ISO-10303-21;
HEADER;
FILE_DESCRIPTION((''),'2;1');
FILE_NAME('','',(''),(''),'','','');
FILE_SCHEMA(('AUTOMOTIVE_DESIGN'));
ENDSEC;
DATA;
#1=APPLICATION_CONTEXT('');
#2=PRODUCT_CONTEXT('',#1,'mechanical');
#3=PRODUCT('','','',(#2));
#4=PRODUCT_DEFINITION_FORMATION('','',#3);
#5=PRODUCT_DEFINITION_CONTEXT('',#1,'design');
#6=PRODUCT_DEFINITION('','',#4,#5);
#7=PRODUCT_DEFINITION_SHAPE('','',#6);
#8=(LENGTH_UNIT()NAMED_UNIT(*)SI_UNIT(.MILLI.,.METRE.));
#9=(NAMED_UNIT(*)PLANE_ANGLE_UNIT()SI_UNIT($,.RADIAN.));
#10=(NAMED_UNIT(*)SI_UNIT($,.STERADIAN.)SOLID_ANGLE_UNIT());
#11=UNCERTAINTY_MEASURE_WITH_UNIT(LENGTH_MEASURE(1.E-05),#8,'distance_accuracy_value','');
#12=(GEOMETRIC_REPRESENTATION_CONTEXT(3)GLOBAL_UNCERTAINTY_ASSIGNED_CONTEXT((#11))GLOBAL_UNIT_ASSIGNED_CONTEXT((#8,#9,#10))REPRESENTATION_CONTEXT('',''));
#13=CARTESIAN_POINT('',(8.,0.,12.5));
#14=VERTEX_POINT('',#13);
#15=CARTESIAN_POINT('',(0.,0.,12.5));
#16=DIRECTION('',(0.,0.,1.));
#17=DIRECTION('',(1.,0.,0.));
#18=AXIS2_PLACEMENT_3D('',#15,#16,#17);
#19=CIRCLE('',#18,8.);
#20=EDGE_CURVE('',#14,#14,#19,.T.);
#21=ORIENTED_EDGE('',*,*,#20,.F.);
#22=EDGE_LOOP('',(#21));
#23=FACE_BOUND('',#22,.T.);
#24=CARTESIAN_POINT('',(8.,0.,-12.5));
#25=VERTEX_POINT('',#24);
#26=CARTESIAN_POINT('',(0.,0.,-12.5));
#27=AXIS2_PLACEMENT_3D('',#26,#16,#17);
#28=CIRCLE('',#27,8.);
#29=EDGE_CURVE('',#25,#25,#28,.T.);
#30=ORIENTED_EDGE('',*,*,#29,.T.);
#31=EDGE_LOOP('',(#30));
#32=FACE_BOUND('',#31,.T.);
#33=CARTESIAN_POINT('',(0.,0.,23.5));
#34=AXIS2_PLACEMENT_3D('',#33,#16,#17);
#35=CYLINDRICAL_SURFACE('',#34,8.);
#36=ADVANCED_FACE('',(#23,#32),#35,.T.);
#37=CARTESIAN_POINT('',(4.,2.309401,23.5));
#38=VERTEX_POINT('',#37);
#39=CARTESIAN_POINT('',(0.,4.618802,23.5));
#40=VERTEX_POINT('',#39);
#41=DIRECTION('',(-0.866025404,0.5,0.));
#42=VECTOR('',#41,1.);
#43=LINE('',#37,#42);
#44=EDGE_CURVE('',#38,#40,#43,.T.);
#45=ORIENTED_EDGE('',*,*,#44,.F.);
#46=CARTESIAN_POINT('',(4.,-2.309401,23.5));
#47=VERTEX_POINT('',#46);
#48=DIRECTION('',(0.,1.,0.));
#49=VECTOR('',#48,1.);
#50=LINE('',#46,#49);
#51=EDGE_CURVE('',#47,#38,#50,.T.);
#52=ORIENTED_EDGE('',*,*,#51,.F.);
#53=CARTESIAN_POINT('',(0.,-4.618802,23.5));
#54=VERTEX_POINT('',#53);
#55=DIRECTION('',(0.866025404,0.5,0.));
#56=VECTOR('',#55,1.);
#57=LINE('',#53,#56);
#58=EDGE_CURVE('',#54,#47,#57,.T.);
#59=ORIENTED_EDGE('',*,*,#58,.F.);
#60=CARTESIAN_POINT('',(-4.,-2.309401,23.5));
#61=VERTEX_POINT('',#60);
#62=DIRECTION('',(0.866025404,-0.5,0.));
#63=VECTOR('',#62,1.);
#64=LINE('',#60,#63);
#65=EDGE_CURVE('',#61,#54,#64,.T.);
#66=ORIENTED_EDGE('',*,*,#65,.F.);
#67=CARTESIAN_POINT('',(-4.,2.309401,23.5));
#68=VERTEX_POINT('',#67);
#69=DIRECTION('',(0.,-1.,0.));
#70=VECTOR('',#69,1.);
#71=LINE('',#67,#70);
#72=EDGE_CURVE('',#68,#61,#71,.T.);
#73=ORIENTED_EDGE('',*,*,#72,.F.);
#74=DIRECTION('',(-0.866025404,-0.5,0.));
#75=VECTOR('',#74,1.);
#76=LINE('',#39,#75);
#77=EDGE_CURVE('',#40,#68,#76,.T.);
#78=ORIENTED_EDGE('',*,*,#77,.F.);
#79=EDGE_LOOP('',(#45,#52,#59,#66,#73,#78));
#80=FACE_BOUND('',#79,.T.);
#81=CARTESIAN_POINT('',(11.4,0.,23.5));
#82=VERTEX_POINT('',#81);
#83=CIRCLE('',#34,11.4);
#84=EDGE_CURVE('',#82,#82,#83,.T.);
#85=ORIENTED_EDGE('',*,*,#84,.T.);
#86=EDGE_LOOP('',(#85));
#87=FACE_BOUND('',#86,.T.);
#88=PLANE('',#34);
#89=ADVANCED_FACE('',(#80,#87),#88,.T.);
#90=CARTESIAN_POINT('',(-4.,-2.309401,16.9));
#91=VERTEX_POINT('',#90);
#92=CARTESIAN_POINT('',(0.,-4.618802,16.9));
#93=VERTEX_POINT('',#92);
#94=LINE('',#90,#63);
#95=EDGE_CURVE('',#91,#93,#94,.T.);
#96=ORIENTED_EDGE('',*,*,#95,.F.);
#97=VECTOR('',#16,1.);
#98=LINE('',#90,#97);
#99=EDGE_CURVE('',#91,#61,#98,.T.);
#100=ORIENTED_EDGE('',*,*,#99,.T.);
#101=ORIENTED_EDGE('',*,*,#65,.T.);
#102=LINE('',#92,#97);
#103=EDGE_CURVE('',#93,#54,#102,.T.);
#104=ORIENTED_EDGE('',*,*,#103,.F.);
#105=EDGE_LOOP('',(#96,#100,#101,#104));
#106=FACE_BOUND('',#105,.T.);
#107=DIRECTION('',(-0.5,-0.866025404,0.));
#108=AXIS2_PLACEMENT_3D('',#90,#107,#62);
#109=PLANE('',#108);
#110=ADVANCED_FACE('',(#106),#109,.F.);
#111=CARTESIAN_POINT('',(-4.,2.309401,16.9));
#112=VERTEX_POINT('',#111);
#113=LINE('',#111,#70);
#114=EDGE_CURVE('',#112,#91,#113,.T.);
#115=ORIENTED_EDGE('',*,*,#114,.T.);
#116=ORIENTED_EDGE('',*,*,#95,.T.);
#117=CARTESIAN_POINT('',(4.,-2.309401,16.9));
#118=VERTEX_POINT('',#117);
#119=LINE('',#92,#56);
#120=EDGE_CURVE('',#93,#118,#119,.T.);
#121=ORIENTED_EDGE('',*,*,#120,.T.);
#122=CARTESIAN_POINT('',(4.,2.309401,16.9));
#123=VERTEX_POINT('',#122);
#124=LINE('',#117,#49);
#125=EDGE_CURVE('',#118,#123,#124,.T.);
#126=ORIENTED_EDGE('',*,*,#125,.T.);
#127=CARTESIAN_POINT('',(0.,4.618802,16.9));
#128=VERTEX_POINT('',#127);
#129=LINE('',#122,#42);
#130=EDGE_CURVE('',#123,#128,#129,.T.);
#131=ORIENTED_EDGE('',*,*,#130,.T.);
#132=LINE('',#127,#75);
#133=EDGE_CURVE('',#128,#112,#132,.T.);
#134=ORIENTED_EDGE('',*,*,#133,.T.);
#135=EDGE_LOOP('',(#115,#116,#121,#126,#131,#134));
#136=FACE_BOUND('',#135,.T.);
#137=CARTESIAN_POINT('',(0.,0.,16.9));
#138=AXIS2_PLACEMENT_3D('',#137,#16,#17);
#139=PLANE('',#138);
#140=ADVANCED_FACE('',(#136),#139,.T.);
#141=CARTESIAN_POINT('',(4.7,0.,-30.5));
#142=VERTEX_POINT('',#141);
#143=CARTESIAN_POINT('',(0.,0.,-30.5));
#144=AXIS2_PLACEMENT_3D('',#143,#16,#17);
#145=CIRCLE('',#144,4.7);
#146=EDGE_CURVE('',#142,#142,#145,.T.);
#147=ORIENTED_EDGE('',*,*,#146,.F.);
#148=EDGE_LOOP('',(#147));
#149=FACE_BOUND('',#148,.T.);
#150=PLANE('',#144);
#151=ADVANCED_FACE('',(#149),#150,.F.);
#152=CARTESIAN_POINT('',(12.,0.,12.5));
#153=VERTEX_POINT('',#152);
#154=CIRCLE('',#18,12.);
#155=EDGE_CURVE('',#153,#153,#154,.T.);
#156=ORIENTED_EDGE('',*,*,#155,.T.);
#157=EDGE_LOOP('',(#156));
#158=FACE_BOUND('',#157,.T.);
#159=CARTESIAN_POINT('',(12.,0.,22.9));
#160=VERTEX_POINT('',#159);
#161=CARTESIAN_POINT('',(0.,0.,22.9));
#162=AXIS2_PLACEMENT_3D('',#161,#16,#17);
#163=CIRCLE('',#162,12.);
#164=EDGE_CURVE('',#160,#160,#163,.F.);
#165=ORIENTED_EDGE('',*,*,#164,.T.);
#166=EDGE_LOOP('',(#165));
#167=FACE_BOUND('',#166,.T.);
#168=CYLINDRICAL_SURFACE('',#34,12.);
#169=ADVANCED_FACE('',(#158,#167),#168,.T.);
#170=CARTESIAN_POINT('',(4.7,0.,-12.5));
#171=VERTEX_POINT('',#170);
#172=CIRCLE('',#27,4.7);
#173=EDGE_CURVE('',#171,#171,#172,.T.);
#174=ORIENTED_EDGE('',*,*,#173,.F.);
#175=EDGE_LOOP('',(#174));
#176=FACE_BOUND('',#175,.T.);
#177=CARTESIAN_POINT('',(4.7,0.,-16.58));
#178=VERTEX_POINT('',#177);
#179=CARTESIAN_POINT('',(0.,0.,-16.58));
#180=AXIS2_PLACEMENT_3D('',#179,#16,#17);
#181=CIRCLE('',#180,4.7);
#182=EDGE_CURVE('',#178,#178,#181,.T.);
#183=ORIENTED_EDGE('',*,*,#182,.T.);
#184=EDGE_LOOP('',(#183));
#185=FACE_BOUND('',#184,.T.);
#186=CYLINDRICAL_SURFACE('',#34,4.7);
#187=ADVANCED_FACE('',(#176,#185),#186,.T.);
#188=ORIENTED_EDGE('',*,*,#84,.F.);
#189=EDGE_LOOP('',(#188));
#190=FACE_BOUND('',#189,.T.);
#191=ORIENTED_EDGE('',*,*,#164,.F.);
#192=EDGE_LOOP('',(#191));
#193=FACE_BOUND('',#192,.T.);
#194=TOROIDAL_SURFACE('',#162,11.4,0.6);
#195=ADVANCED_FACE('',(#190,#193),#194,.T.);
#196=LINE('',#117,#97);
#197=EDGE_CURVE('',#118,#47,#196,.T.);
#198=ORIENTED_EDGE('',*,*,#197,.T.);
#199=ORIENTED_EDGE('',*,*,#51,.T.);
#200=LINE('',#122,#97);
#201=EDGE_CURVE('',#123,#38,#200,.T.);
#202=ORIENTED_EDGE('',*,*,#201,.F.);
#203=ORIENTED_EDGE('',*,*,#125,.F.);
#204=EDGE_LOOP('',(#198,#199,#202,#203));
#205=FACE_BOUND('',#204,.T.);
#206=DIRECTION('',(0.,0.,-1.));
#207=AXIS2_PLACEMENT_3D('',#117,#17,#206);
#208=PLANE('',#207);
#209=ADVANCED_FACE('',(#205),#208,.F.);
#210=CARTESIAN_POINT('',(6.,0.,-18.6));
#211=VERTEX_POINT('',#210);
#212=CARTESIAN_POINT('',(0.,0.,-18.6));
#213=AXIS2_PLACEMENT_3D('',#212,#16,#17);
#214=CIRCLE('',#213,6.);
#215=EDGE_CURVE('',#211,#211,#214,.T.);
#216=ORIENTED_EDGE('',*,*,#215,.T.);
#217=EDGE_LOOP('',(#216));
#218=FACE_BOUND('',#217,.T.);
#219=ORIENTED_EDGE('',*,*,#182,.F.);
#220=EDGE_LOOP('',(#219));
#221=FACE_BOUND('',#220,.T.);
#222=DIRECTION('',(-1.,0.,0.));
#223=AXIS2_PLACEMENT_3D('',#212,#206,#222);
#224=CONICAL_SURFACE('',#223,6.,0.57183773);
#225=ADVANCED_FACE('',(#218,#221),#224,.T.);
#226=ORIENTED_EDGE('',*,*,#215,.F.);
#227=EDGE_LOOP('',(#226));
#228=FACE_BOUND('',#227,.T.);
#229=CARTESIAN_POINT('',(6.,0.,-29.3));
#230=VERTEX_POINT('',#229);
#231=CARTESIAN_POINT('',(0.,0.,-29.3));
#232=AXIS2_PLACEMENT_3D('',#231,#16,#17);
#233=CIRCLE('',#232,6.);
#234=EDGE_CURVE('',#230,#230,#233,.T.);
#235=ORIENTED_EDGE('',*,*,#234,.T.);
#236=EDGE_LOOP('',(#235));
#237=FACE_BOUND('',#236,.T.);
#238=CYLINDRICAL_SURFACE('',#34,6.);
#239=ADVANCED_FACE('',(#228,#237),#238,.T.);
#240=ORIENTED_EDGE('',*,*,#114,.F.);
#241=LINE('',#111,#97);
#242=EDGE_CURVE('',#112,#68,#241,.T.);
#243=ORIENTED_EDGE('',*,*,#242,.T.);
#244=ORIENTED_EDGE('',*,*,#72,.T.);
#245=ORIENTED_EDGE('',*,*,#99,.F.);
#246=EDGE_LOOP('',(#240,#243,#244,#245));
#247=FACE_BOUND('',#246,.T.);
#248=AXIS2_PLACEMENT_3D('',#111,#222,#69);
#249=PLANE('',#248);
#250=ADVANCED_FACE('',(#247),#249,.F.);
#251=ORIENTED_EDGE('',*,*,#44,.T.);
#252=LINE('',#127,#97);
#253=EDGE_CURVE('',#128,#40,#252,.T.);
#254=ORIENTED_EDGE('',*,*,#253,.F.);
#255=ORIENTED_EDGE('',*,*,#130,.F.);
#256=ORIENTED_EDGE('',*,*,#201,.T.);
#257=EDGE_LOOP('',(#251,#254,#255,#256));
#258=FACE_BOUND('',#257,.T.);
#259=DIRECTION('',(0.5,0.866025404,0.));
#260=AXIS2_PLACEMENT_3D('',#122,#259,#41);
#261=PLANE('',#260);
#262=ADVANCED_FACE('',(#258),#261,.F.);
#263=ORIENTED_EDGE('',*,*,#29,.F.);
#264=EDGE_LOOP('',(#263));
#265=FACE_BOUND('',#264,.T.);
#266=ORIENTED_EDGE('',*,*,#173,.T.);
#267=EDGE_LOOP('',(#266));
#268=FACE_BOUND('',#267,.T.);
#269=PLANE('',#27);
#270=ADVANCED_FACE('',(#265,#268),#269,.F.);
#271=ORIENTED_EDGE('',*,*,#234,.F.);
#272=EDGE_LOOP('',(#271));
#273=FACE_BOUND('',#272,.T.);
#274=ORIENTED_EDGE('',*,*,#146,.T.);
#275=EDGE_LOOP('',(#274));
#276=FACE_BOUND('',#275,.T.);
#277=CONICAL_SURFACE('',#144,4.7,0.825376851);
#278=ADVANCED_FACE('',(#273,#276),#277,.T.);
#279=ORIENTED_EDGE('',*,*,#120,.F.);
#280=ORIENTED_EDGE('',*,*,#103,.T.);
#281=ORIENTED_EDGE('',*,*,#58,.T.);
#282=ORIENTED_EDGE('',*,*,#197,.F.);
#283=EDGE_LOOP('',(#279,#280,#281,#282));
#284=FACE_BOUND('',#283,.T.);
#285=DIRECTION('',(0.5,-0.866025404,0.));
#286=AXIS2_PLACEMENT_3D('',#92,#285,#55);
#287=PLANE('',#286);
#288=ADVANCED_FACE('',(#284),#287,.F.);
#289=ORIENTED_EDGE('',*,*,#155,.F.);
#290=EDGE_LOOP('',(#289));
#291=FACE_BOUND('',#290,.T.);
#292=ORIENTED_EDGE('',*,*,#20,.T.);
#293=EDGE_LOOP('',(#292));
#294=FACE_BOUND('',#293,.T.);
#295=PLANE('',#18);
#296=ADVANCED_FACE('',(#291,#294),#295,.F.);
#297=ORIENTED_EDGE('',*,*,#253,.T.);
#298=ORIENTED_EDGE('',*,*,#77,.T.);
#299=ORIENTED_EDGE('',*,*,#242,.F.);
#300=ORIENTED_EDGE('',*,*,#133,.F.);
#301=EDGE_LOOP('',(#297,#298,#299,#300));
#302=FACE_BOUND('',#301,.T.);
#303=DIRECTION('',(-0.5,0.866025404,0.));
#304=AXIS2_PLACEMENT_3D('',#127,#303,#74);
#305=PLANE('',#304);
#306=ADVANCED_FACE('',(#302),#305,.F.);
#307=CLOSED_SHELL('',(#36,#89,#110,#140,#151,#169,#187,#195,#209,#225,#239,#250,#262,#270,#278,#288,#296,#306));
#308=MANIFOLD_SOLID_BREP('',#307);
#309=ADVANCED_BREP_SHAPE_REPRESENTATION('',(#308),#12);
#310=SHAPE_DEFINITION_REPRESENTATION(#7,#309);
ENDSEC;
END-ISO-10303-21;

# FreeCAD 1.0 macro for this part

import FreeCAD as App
import Part
import Sketcher

V = App.Vector
Q = App.Units.Quantity


def edges_at(feature, points):
    """Names of the edges that pass closest to the given points."""
    edges = feature.Shape.Edges
    near = lambda p: min(range(len(edges)), key=lambda i: edges[i].distToShape(Part.Vertex(*p))[0])
    return sorted({f"Edge{near(p) + 1}" for p in points})


def add_polygon(sketch, points):
    """Adds a closed chain of lines whose ends are joined by coincident constraints."""
    first, n = sketch.GeometryCount, len(points)
    for a, b in zip(points, points[1:] + points[:1]):
        sketch.addGeometry(Part.LineSegment(App.Vector(*a, 0), App.Vector(*b, 0)), False)
    for i in range(n):
        sketch.addConstraint(Sketcher.Constraint("Coincident", first + i, 2, first + (i + 1) % n, 1))

doc = App.newDocument("Part")
body = doc.addObject("PartDesign::Body", "Body")

# Sketch on XZ plane
sketch1 = body.newObject("Sketcher::SketchObject", "Sketch")
sketch1.AttachmentSupport = (doc.getObject("XZ_Plane"), [""])
sketch1.MapMode = "FlatFace"
add_polygon(sketch1, [(0, 23.5), (0, -30.5), (-4.7, -30.5), (-6, -29.3), (-6, -18.6), (-4.7, -16.58), (-4.7, -12.5), (-8, -12.5), (-8, 12.5), (-12, 12.5), (-12, 23.5)])  # lines 0-10
sketch1.addConstraint([
    Sketcher.Constraint("Vertical", 0),
    Sketcher.Constraint("Horizontal", 1),
    Sketcher.Constraint("Vertical", 3),
    Sketcher.Constraint("Vertical", 5),
    Sketcher.Constraint("Horizontal", 6),
    Sketcher.Constraint("Vertical", 7),
    Sketcher.Constraint("Horizontal", 8),
    Sketcher.Constraint("Vertical", 9),
    Sketcher.Constraint("Horizontal", 10),
    Sketcher.Constraint("PointOnObject", 0, 2, -2),
    Sketcher.Constraint("Vertical", 1, 2, 4, 2),
    Sketcher.Constraint("DistanceX", 8, 2, 8, 1, Q("4 mm")),
    Sketcher.Constraint("DistanceX", 10, 1, 10, 2, Q("12 mm")),
    Sketcher.Constraint("DistanceY", 0, 2, 0, 1, Q("54 mm")),
    Sketcher.Constraint("DistanceY", 7, 1, 7, 2, Q("25 mm")),
    Sketcher.Constraint("DistanceY", 9, 1, 9, 2, Q("11 mm")),
    Sketcher.Constraint("DistanceX", 1, 2, 1, 1, Q("4.7 mm")),
    Sketcher.Constraint("DistanceY", 3, 1, 3, 2, Q("10.7 mm")),
    Sketcher.Constraint("DistanceX", 2, 2, -1, 1, Q("6 mm")),
    Sketcher.Constraint("DistanceY", 5, 1, 5, 2, Q("4.08 mm")),
    Sketcher.Constraint("DistanceY", 0, 2, -1, 1, Q("30.5 mm")),
    Sketcher.Constraint("DistanceY", 2, 2, -1, 1, Q("29.3 mm")),
])
revolution = body.newObject("PartDesign::Revolution", "Revolution")
revolution.Profile = sketch1
revolution.ReferenceAxis = (sketch1, ["V_Axis"])
revolution.Angle = 360

# Sketch on XY plane
sketch2 = body.newObject("Sketcher::SketchObject", "Sketch001")
sketch2.AttachmentSupport = (doc.getObject("XY_Plane"), [""])
sketch2.MapMode = "FlatFace"
sketch2.AttachmentOffset = App.Placement(V(0, 0, 23.5), App.Rotation())
add_polygon(sketch2, [(4, 2.309401), (0, 4.618802), (-4, 2.309401), (-4, -2.309401), (0, -4.618802), (4, -2.309401)])  # lines 0-5
sketch2.addConstraint([
    Sketcher.Constraint("Vertical", 2),
    Sketcher.Constraint("Vertical", 5),
    Sketcher.Constraint("Symmetric", 0, 2, 3, 2, -1, 1),
    Sketcher.Constraint("Symmetric", 1, 2, 4, 2, -1, 1),
    Sketcher.Constraint("PointOnObject", 0, 2, -2),
    Sketcher.Constraint("Parallel", 0, 3),
    Sketcher.Constraint("Horizontal", 2, 2, 4, 2),
    Sketcher.Constraint("Angle", 0, Q("150 deg")),
    Sketcher.Constraint("DistanceX", 1, 2, -1, 1, Q("4 mm")),
    Sketcher.Constraint("DistanceY", -1, 1, 1, 2, Q("2.309401 mm")),
])
pocket1 = body.newObject("PartDesign::Pocket", "Pocket")
pocket1.Profile = sketch2
pocket1.Length = 6.6
doc.recompute()

fillet = body.newObject("PartDesign::Fillet", "Fillet")
fillet.Base = (pocket1, edges_at(pocket1, [(-12, 0, 23.5)]))
fillet.Radius = 0.6

doc.recompute()
